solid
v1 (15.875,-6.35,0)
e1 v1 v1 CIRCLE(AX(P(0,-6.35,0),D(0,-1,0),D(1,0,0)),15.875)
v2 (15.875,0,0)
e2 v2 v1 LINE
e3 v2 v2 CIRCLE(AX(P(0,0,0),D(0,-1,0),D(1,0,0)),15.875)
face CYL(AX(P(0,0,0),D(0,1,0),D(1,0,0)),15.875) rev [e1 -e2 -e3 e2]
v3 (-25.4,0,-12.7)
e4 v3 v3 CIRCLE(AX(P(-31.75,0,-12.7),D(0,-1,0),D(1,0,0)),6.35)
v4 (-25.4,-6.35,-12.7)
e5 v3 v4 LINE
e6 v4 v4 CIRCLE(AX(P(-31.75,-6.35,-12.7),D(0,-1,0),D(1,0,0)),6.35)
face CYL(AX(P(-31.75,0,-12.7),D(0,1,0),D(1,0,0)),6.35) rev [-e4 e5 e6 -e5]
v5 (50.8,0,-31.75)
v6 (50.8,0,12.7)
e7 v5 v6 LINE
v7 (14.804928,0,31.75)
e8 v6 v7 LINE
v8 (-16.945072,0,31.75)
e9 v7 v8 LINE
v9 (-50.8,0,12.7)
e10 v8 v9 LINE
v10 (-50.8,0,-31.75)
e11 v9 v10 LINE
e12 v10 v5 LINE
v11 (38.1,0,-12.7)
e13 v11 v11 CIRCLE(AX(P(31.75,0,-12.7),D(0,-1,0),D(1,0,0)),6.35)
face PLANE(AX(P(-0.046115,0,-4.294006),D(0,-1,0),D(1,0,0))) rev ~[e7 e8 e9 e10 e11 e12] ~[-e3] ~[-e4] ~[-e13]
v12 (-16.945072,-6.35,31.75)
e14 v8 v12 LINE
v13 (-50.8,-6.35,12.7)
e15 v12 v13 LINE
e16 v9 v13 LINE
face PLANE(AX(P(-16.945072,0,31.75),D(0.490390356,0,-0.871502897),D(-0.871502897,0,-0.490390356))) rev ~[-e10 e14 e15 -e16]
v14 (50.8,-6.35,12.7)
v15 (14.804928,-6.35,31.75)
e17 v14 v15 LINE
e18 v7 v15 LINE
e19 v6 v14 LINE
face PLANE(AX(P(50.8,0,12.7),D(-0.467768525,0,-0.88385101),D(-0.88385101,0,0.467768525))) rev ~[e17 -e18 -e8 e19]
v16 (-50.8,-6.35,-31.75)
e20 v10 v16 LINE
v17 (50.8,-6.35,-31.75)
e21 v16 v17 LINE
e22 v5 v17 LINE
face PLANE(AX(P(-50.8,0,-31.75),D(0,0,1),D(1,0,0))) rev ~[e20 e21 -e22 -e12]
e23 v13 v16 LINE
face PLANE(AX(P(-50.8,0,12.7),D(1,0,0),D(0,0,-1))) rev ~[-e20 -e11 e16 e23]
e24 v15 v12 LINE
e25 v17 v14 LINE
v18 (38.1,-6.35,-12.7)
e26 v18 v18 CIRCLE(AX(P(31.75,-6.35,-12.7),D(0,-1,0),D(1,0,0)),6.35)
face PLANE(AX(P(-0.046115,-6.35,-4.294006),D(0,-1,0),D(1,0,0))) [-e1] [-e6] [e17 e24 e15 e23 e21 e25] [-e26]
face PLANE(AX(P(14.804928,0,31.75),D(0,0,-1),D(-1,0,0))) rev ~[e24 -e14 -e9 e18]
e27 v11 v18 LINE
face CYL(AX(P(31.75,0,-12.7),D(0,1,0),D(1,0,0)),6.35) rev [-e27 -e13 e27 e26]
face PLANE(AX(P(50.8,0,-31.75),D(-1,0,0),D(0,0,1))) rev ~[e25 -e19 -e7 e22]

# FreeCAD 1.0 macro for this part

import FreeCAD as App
import Part
import Sketcher

V = App.Vector
Q = App.Units.Quantity

doc = App.newDocument("Part")
params = doc.addObject("Spreadsheet::Sheet", "Params")
for row, (alias, value) in enumerate([
    ("sketch1_diameter", "0.5 in"),
    ("sketch1_diameter2", "1.25 in"),
    ("sketch1_width", "4 in"),
    ("sketch1_width2", "1.25 in"),
    ("sketch1_height", "1.75 in"),
    ("pad1_length", "0.25 in"),
], start=1):
    params.set(f"A{row}", alias)
    params.set(f"B{row}", "=" + value)
    params.setAlias(f"B{row}", alias)

body = doc.addObject("PartDesign::Body", "Body")

sketch1 = body.newObject("Sketcher::SketchObject", "Sketch")
sketch1.AttachmentSupport = (doc.getObject("XZ_Plane"), [""])
sketch1.MapMode = "FlatFace"
sketch1.addGeometry(Part.LineSegment(V(51, -32, 0), V(51, 13, 0)), False)
sketch1.addGeometry(Part.LineSegment(V(51, 13, 0), V(15, 32, 0)), False)
sketch1.addGeometry(Part.LineSegment(V(15, 32, 0), V(-17, 32, 0)), False)
sketch1.addGeometry(Part.LineSegment(V(-17, 32, 0), V(-51, 13, 0)), False)
sketch1.addGeometry(Part.LineSegment(V(-51, 13, 0), V(-51, -32, 0)), False)
sketch1.addGeometry(Part.LineSegment(V(-51, -32, 0), V(51, -32, 0)), False)
sketch1.addGeometry(Part.Circle(V(-32, -13, 0), V(0, 0, 1), 6), False)
sketch1.addGeometry(Part.Circle(V(32, -13, 0), V(0, 0, 1), 6), False)
sketch1.addGeometry(Part.Circle(V(0, 0, 0), V(0, 0, 1), 16), False)
sketch1.addConstraint(Sketcher.Constraint("Coincident", 0, 2, 1, 1))
sketch1.addConstraint(Sketcher.Constraint("Coincident", 1, 2, 2, 1))
sketch1.addConstraint(Sketcher.Constraint("Coincident", 2, 2, 3, 1))
sketch1.addConstraint(Sketcher.Constraint("Coincident", 3, 2, 4, 1))
sketch1.addConstraint(Sketcher.Constraint("Coincident", 4, 2, 5, 1))
sketch1.addConstraint(Sketcher.Constraint("Coincident", 5, 2, 0, 1))
sketch1.addConstraint(Sketcher.Constraint("Vertical", 0))
sketch1.addConstraint(Sketcher.Constraint("Horizontal", 2))
sketch1.addConstraint(Sketcher.Constraint("Vertical", 4))
sketch1.addConstraint(Sketcher.Constraint("Horizontal", 5))
sketch1.addConstraint(Sketcher.Constraint("Coincident", 8, 3, -1, 1))
sketch1.addConstraint(Sketcher.Constraint("Equal", 6, 7))
sketch1.addConstraint(Sketcher.Constraint("Symmetric", 6, 3, 7, 3, -2))
sketch1.addConstraint(Sketcher.Constraint("Symmetric", 0, 2, 3, 2, -2))
sketch1.addConstraint(Sketcher.Constraint("Diameter", 6, Q("0.5 in")))
sketch1.addConstraint(Sketcher.Constraint("Diameter", 8, Q("1.25 in")))
sketch1.addConstraint(Sketcher.Constraint("DistanceX", 5, 1, 5, 2, Q("4 in")))
sketch1.addConstraint(Sketcher.Constraint("DistanceY", 7, 3, 0, 2, Q("1 in")))
sketch1.addConstraint(Sketcher.Constraint("DistanceX", 2, 2, 2, 1, Q("1.25 in")))
sketch1.addConstraint(Sketcher.Constraint("DistanceY", 0, 1, 0, 2, Q("1.75 in")))
sketch1.addConstraint(Sketcher.Constraint("DistanceY", 6, 3, -1, 1, Q("0.5 in")))
sketch1.addConstraint(Sketcher.Constraint("DistanceX", 6, 3, 7, 3, Q("2.5 in")))
sketch1.addConstraint(Sketcher.Constraint("DistanceY", 4, 2, 2, 2, Q("2.5 in")))
sketch1.addConstraint(Sketcher.Constraint("Distance", 1, 40.725271))
sketch1.setExpression("Constraints[14]", "Params.sketch1_diameter")
sketch1.setExpression("Constraints[15]", "Params.sketch1_diameter2")
sketch1.setExpression("Constraints[16]", "Params.sketch1_width")
sketch1.setExpression("Constraints[18]", "Params.sketch1_width2")
sketch1.setExpression("Constraints[19]", "Params.sketch1_height")
pad1 = body.newObject("PartDesign::Pad", "Pad")
pad1.Profile = sketch1
pad1.setExpression("Length", "Params.pad1_length")

doc.recompute()
